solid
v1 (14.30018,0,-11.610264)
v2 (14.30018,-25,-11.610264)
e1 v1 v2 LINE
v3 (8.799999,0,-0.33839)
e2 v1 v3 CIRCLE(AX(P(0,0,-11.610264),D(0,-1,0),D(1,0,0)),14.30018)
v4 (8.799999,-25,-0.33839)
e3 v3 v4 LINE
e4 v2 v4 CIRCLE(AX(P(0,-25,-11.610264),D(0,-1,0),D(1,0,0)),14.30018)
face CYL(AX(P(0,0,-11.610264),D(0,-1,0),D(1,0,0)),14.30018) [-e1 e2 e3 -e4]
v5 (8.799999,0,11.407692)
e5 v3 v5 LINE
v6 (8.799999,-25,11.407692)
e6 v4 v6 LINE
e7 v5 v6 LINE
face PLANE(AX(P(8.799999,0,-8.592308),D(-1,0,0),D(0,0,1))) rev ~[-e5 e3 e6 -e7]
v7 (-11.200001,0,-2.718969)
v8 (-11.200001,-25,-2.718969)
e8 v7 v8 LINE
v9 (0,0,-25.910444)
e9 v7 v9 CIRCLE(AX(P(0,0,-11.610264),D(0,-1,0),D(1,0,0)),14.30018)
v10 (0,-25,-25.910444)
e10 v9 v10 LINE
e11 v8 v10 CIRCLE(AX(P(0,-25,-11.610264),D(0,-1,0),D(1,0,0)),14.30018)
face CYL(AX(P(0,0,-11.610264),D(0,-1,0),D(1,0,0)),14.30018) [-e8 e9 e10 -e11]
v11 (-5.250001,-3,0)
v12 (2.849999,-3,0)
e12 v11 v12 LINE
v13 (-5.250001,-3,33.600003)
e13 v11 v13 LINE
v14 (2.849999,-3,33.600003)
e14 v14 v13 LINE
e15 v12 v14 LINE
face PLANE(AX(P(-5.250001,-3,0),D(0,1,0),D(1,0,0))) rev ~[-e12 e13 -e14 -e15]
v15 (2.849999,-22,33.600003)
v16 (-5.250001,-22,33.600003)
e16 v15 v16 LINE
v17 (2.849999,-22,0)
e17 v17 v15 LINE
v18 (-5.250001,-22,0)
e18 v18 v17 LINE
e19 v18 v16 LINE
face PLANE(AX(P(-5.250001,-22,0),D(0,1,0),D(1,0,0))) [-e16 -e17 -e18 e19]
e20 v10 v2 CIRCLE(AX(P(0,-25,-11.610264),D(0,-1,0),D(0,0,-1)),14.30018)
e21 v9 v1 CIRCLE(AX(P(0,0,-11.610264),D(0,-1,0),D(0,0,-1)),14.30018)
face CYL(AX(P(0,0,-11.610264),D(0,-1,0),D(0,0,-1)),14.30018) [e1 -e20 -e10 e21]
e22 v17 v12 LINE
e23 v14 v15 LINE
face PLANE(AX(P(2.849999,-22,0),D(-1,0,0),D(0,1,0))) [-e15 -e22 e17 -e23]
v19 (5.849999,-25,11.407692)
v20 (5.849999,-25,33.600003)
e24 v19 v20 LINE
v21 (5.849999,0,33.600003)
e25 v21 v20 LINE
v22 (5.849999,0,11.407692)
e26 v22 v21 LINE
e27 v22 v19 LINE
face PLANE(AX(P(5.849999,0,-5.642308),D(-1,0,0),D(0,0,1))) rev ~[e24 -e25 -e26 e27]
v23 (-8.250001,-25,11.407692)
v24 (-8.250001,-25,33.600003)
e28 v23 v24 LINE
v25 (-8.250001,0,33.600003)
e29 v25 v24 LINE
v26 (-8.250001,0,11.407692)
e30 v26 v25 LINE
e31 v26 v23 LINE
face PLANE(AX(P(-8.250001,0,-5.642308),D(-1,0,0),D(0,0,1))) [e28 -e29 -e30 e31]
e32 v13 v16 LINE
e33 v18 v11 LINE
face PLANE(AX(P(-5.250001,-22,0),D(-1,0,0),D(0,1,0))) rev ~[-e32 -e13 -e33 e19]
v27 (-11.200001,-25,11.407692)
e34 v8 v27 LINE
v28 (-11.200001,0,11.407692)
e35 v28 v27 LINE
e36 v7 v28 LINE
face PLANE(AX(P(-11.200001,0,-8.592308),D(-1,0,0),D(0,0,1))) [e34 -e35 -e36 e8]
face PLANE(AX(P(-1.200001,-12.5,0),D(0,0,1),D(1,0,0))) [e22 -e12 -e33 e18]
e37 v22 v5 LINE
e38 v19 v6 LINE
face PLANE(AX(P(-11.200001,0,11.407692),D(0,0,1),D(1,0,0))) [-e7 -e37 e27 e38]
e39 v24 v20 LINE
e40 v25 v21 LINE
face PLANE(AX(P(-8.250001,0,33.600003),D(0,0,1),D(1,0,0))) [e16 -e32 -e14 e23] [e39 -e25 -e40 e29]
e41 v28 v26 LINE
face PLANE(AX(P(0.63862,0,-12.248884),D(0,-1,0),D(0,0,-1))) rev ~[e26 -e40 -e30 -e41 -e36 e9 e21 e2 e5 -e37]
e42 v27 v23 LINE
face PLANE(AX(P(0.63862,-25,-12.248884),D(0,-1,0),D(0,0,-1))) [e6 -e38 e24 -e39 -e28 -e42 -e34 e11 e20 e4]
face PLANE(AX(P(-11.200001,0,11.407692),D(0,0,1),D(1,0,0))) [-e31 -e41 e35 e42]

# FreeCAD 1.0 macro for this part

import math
import FreeCAD as App
import Part
import Sketcher

V = App.Vector
Q = App.Units.Quantity

doc = App.newDocument("Part")
body = doc.addObject("PartDesign::Body", "Body")

sketch1 = doc.addObject("Sketcher::SketchObject", "Sketch")
body.addObject(sketch1)
sketch1.AttachmentSupport = (doc.XZ_Plane, [""])
sketch1.MapMode = "FlatFace"
sketch1.addGeometry([
    Part.LineSegment(V(-11, 11, 0), V(-11, -9, 0)),
    Part.LineSegment(V(-11, -9, 0), V(9, -9, 0)),
    Part.LineSegment(V(9, -9, 0), V(9, 11, 0)),
    Part.LineSegment(V(9, 11, 0), V(-11, 11, 0)),
], False)
sketch1.addConstraint([
    Sketcher.Constraint("Coincident", 0, 2, 1, 1),
    Sketcher.Constraint("Coincident", 1, 2, 2, 1),
    Sketcher.Constraint("Coincident", 2, 2, 3, 1),
    Sketcher.Constraint("Coincident", 3, 2, 0, 1),
    Sketcher.Constraint("Vertical", 0),
    Sketcher.Constraint("Horizontal", 1),
    Sketcher.Constraint("Vertical", 2),
    Sketcher.Constraint("Horizontal", 3),
    Sketcher.Constraint("Equal", 3, 0),
    Sketcher.Constraint("DistanceX", 1, 1, 1, 2, Q("20 mm")),
    Sketcher.Constraint("DistanceX", 0, 2, -1, 1, Q("11.200001 mm")),
    Sketcher.Constraint("DistanceY", 0, 2, -1, 1, Q("8.592308 mm")),
])
pad1 = doc.addObject("PartDesign::Pad", "Pad")
body.addObject(pad1)
pad1.Profile = sketch1
pad1.Length = 25

sketch2 = doc.addObject("Sketcher::SketchObject", "Sketch001")
body.addObject(sketch2)
sketch2.AttachmentSupport = (doc.XZ_Plane, [""])
sketch2.MapMode = "FlatFace"
sketch2.addGeometry([
    Part.LineSegment(V(-8, 34, 0), V(-8, -6, 0)),
    Part.LineSegment(V(-8, -6, 0), V(6, -6, 0)),
    Part.LineSegment(V(6, -6, 0), V(6, 34, 0)),
    Part.LineSegment(V(6, 34, 0), V(-8, 34, 0)),
], False)
sketch2.addConstraint([
    Sketcher.Constraint("Coincident", 0, 2, 1, 1),
    Sketcher.Constraint("Coincident", 1, 2, 2, 1),
    Sketcher.Constraint("Coincident", 2, 2, 3, 1),
    Sketcher.Constraint("Coincident", 3, 2, 0, 1),
    Sketcher.Constraint("Vertical", 0),
    Sketcher.Constraint("Horizontal", 1),
    Sketcher.Constraint("Vertical", 2),
    Sketcher.Constraint("Horizontal", 3),
    Sketcher.Constraint("DistanceX", 1, 1, 1, 2, Q("14.1 mm")),
    Sketcher.Constraint("DistanceX", 0, 2, -1, 1, Q("8.250001 mm")),
    Sketcher.Constraint("DistanceY", 0, 2, 0, 1, Q("39.24231 mm")),
    Sketcher.Constraint("DistanceY", 0, 2, -1, 1, Q("5.642308 mm")),
])
pad2 = doc.addObject("PartDesign::Pad", "Pad001")
body.addObject(pad2)
pad2.Profile = sketch2
pad2.Length = 25

sketch3 = doc.addObject("Sketcher::SketchObject", "Sketch002")
body.addObject(sketch3)
sketch3.AttachmentSupport = (doc.XZ_Plane, [""])
sketch3.MapMode = "FlatFace"
sketch3.addGeometry([
    Part.ArcOfCircle(Part.Circle(V(0, -12, 0), V(0, 0, 1), 14), math.radians(-90), math.radians(0)),
    Part.ArcOfCircle(Part.Circle(V(0, -12, 0), V(0, 0, 1), 14), math.radians(0), math.radians(270)),
], False)
sketch3.addConstraint([
    Sketcher.Constraint("Tangent", 0, 1, 1, 2),
    Sketcher.Constraint("Coincident", 1, 1, 0, 2),
    Sketcher.Constraint("PointOnObject", 0, 3, -2),
    Sketcher.Constraint("PointOnObject", 0, 1, -2),
    Sketcher.Constraint("Horizontal", 0, 3, 1, 1),
    Sketcher.Constraint("Radius", 0, Q("14.30018 mm")),
    Sketcher.Constraint("DistanceY", 0, 3, -1, 1, Q("11.610264 mm")),
])

sketch4 = doc.addObject("Sketcher::SketchObject", "Sketch003")
body.addObject(sketch4)
sketch4.AttachmentSupport = (doc.XY_Plane, [""])
sketch4.MapMode = "FlatFace"
sketch4.AttachmentOffset = App.Placement(V(0, 0, 11.407692), App.Rotation())
sketch4.addGeometry(Part.LineSegment(V(-11, 0, 0), V(-11, -25, 0)), False)
sketch4.addConstraint([
    Sketcher.Constraint("Vertical", 0),
    Sketcher.Constraint("PointOnObject", 0, 1, -1),
    Sketcher.Constraint("DistanceY", 0, 2, 0, 1, Q("25 mm")),
    Sketcher.Constraint("DistanceX", 0, 1, -1, 1, Q("11.200001 mm")),
])
doc.recompute()

additivepipe = doc.addObject("PartDesign::AdditivePipe", "AdditivePipe")
body.addObject(additivepipe)
additivepipe.Profile = sketch3
additivepipe.Spine = (sketch4, ["Edge1"])

sketch5 = doc.addObject("Sketcher::SketchObject", "Sketch004")
body.addObject(sketch5)
sketch5.AttachmentSupport = (doc.XY_Plane, [""])
sketch5.MapMode = "FlatFace"
sketch5.addGeometry([
    Part.LineSegment(V(-5, -3, 0), V(-5, -22, 0)),
    Part.LineSegment(V(-5, -22, 0), V(3, -22, 0)),
    Part.LineSegment(V(3, -22, 0), V(3, -3, 0)),
    Part.LineSegment(V(3, -3, 0), V(-5, -3, 0)),
], False)
sketch5.addConstraint([
    Sketcher.Constraint("Coincident", 0, 2, 1, 1),
    Sketcher.Constraint("Coincident", 1, 2, 2, 1),
    Sketcher.Constraint("Coincident", 2, 2, 3, 1),
    Sketcher.Constraint("Coincident", 3, 2, 0, 1),
    Sketcher.Constraint("Vertical", 0),
    Sketcher.Constraint("Horizontal", 1),
    Sketcher.Constraint("Vertical", 2),
    Sketcher.Constraint("Horizontal", 3),
    Sketcher.Constraint("DistanceY", 0, 2, 0, 1, Q("19 mm")),
    Sketcher.Constraint("DistanceX", 1, 1, 1, 2, Q("8.1 mm")),
    Sketcher.Constraint("DistanceY", 0, 2, -1, 1, Q("22 mm")),
    Sketcher.Constraint("DistanceX", 0, 2, -1, 1, Q("5.250001 mm")),
])
pocket1 = doc.addObject("PartDesign::Pocket", "Pocket")
body.addObject(pocket1)
pocket1.Profile = sketch5
pocket1.Type = "ThroughAll"
pocket1.Reversed = True

doc.recompute()
